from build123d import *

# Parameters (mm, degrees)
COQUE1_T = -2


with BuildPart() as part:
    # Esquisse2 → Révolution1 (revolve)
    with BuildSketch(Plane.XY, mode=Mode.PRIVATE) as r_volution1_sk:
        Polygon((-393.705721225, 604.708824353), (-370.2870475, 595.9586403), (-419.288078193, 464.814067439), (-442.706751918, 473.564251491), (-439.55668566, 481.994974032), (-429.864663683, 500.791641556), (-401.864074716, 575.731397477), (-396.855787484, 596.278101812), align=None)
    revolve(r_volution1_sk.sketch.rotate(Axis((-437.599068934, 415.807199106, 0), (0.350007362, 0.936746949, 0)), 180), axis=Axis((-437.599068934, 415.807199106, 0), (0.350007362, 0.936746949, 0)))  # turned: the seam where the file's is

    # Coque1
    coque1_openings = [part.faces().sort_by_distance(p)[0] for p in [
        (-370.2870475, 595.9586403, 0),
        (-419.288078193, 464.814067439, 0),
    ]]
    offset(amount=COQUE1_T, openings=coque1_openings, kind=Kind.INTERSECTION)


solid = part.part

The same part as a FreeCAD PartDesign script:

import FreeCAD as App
import Part
import Sketcher
from FreeCAD import Vector
Q = App.Units.Quantity


def faces_at(feature, points):
    """Names of the faces that lie closest to the given points."""
    faces = feature.Shape.Faces
    near = lambda p: min(range(len(faces)), key=lambda i: faces[i].distToShape(Part.Vertex(*p))[0])
    return sorted({f"Face{near(p) + 1}" for p in points})


def add_polygon(sketch, points):
    """Adds a closed chain of lines whose ends are joined by coincident constraints."""
    first, n = sketch.GeometryCount, len(points)
    for a, b in zip(points, points[1:] + points[:1]):
        sketch.addGeometry(Part.LineSegment(App.Vector(*a, 0), App.Vector(*b, 0)), False)
    for i in range(n):
        sketch.addConstraint(Sketcher.Constraint("Coincident", first + i, 2, first + (i + 1) % n, 1))

doc = App.newDocument("Part")
body = doc.addObject("PartDesign::Body", "Body")

sketch1 = body.newObject("Sketcher::SketchObject", "Sketch")
sketch1.AttachmentSupport = (doc.getObject("XY_Plane"), [""])
sketch1.MapMode = "FlatFace"
add_polygon(sketch1, [(-370, 596), (-394, 605), (-397, 596), (-402, 576), (-430, 501), (-440, 482), (-443, 474), (-419, 465)])
sketch1.addGeometry(Part.LineSegment(Vector(-419, 465, 0), Vector(-370, 596, 0)), True)
sketch1.addConstraint([
    Sketcher.Constraint("Coincident", 8, 1, 6, 2),
    Sketcher.Constraint("Coincident", 8, 2, 7, 2),
    Sketcher.Constraint("Perpendicular", 0, 1),
    Sketcher.Constraint("Parallel", 1, 3),
    Sketcher.Constraint("Parallel", 3, 5),
    Sketcher.Constraint("Perpendicular", 5, 6),
    Sketcher.Constraint("Perpendicular", 6, 7),
    Sketcher.Constraint("Equal", 2, 4),
    Sketcher.Constraint("Equal", 1, 5),
    Sketcher.Constraint("Equal", 0, 6),
    Sketcher.Constraint("Distance", 0, Q("25 mm")),
    Sketcher.Constraint("Distance", 1, Q("9 mm")),
    Sketcher.Constraint("Distance", 3, Q("80 mm")),
    Sketcher.Constraint("Distance", 7, Q("140 mm")),
    Sketcher.Constraint("DistanceY", 3, 2, 7, 2, Q("95.166999 mm")),
    Sketcher.Constraint("DistanceY", -1, 1, 1, 2, Q("596.278102 mm")),
    Sketcher.Constraint("DistanceX", 4, 2, 1, 2, Q("42.700898 mm")),
    Sketcher.Constraint("DistanceX", 0, 2, -1, 1, Q("393.705721 mm")),
])
revolution = body.newObject("PartDesign::Revolution", "Revolution")
revolution.Profile = sketch1
revolution.ReferenceAxis = (sketch1, ["Axis0"])
revolution.Angle = 360
doc.recompute()

thickness = body.newObject("PartDesign::Thickness", "Thickness")
thickness.Base = (revolution, faces_at(revolution, [(-370.287, 595.959, 0), (-419.288, 464.814, 0)]))
thickness.Value = 2
thickness.Reversed = True
thickness.Join = "Intersection"

doc.recompute()
